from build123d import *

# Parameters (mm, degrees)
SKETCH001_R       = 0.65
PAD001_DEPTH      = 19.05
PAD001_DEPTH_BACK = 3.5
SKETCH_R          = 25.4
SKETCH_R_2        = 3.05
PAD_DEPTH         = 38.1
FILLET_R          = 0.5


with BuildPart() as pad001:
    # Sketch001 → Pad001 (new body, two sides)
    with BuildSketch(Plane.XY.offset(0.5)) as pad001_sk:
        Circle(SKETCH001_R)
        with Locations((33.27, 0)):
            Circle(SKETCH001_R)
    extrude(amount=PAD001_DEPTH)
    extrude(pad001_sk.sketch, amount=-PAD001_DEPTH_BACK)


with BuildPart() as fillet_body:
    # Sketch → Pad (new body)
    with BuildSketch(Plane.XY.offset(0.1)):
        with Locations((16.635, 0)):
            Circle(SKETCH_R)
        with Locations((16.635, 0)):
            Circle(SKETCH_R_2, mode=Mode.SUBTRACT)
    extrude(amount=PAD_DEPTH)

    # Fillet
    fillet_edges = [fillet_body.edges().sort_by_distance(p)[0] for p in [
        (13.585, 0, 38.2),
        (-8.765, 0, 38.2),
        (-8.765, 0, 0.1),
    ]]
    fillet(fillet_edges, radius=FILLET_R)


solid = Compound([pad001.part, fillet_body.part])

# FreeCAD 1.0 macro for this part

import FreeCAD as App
import Part
import Sketcher


def edges_at(feature, points):
    """Names of the edges that pass closest to the given points."""
    edges = feature.Shape.Edges
    near = lambda p: min(range(len(edges)), key=lambda i: edges[i].distToShape(Part.Vertex(*p))[0])
    return sorted({f"Edge{near(p) + 1}" for p in points})

doc = App.newDocument("Part")
params = doc.addObject("Spreadsheet::Sheet", "Params")
for row, (alias, value) in enumerate([
    ("sketch1_diameter", "1.3 mm"),
    ("pad1_length", "19.05 mm"),
    ("pad1_length2", "3.5 mm"),
    ("sketch2_diameter", "50.8 mm"),
    ("sketch2_diameter2", "6.1 mm"),
    ("pad2_length", "38.1 mm"),
    ("fillet_radius", "0.5 mm"),
], start=1):
    params.set(f"A{row}", alias)
    params.set(f"B{row}", "=" + value)
    params.setAlias(f"B{row}", alias)

body = doc.addObject("PartDesign::Body", "Body")
body.AllowCompound = True

sketch1 = doc.addObject("Sketcher::SketchObject", "Sketch")
body.addObject(sketch1)
sketch1.AttachmentSupport = (doc.XY_Plane, [""])
sketch1.MapMode = "FlatFace"
sketch1.AttachmentOffset = App.Placement(App.Vector(0, 0, 0.5), App.Rotation())
sketch1.addGeometry(Part.Circle(App.Vector(0, 0, 0), App.Vector(0, 0, 1), 0.7), False)
sketch1.addGeometry(Part.Circle(App.Vector(33.3, 0, 0), App.Vector(0, 0, 1), 0.7), False)
sketch1.addConstraint(Sketcher.Constraint("Coincident", 0, 3, -1, 1))
sketch1.addConstraint(Sketcher.Constraint("Equal", 0, 1))
sketch1.addConstraint(Sketcher.Constraint("PointOnObject", 1, 3, -1))
sketch1.addConstraint(Sketcher.Constraint("Diameter", 0, 1.3))
sketch1.addConstraint(Sketcher.Constraint("DistanceX", -1, 1, 1, 3, 33.27))
sketch1.setExpression("Constraints[3]", "Params.sketch1_diameter")
pad1 = doc.addObject("PartDesign::Pad", "Pad")
body.addObject(pad1)
pad1.Profile = sketch1
pad1.Type = "TwoLengths"
pad1.setExpression("Length", "Params.pad1_length")
pad1.setExpression("Length2", "Params.pad1_length2")
body2 = doc.addObject("PartDesign::Body", "Body001")

sketch2 = doc.addObject("Sketcher::SketchObject", "Sketch001")
body2.addObject(sketch2)
sketch2.AttachmentSupport = (doc.getObject("XY_Plane001"), [""])
sketch2.MapMode = "FlatFace"
sketch2.AttachmentOffset = App.Placement(App.Vector(0, 0, 0.1), App.Rotation())
sketch2.addGeometry(Part.Circle(App.Vector(16.6, 0, 0), App.Vector(0, 0, 1), 25.4), False)
sketch2.addGeometry(Part.Circle(App.Vector(16.6, 0, 0), App.Vector(0, 0, 1), 3), False)
sketch2.addConstraint(Sketcher.Constraint("Coincident", 1, 3, 0, 3))
sketch2.addConstraint(Sketcher.Constraint("PointOnObject", 0, 3, -1))
sketch2.addConstraint(Sketcher.Constraint("Diameter", 0, 50.8))
sketch2.addConstraint(Sketcher.Constraint("Diameter", 1, 6.1))
sketch2.addConstraint(Sketcher.Constraint("DistanceX", -1, 1, 0, 3, 16.635))
sketch2.setExpression("Constraints[2]", "Params.sketch2_diameter")
sketch2.setExpression("Constraints[3]", "Params.sketch2_diameter2")
pad2 = doc.addObject("PartDesign::Pad", "Pad001")
body2.addObject(pad2)
pad2.Profile = sketch2
pad2.setExpression("Length", "Params.pad2_length")
doc.recompute()

fillet = doc.addObject("PartDesign::Fillet", "Fillet")
body2.addObject(fillet)
fillet.Base = (pad2, edges_at(pad2, [(13.585, 0, 38.2), (-8.765, 0, 38.2), (-8.765, 0, 0.1)]))
fillet.setExpression("Radius", "Params.fillet_radius")

doc.recompute()
